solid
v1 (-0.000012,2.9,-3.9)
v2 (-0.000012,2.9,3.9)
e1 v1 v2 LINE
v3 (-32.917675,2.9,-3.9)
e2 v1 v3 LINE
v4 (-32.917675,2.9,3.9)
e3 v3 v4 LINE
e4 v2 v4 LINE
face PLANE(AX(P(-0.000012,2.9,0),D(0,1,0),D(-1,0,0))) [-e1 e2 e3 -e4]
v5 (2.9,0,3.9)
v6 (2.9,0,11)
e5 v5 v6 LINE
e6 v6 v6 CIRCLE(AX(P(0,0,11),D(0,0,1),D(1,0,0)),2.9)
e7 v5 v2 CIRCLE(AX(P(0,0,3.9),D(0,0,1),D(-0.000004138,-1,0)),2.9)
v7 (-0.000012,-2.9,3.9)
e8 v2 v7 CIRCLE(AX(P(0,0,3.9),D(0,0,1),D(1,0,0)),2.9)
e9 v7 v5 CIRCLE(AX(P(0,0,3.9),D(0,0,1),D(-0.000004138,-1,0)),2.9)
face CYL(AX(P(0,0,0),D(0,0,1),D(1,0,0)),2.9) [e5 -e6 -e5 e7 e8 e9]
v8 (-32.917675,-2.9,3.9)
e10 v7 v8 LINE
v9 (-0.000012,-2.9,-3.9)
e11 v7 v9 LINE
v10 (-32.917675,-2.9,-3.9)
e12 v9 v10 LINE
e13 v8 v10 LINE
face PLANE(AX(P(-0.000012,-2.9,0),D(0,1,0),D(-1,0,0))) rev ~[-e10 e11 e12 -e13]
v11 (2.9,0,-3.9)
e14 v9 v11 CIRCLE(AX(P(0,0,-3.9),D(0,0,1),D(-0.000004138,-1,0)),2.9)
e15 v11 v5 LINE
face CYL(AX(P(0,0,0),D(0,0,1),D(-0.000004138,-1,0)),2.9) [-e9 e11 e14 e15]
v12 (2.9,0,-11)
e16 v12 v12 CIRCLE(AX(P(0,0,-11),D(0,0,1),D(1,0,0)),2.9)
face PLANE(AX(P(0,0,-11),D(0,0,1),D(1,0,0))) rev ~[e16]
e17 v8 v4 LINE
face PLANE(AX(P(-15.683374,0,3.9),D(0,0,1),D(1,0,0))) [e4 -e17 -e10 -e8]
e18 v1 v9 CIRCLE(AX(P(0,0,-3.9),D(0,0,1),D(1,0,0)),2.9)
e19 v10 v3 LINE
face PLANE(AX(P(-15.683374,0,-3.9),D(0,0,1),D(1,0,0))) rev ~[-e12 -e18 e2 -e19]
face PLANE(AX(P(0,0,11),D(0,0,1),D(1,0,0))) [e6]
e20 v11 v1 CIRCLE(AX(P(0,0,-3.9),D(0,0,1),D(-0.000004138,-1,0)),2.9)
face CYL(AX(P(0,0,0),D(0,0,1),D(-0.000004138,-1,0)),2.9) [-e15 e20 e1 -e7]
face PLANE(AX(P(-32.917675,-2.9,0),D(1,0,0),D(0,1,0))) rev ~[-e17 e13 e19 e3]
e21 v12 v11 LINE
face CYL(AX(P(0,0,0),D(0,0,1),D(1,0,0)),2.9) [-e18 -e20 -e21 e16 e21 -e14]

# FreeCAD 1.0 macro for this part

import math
import FreeCAD as App
import Part
import Sketcher
from FreeCAD import Vector

doc = App.newDocument("Part")
body = doc.addObject("PartDesign::Body", "Body")

# Sketch on XY plane
sketch1 = body.newObject("Sketcher::SketchObject", "Sketch")
sketch1.AttachmentSupport = (doc.getObject("XY_Plane"), [""])
sketch1.MapMode = "FlatFace"
sketch1.addGeometry([
    Part.ArcOfCircle(Part.Circle(Vector(0, 0, 0), Vector(0, 0, 1), 2.9), math.radians(-90), math.radians(90)),
    Part.LineSegment(Vector(0, 2.9, 0), Vector(-32.9, 2.9, 0)),
    Part.LineSegment(Vector(-32.9, 2.9, 0), Vector(-32.9, -2.9, 0)),
    Part.LineSegment(Vector(-32.9, -2.9, 0), Vector(0, -2.9, 0)),
], False)
sketch1.addConstraint([
    Sketcher.Constraint("Coincident", 0, 2, 1, 1),
    Sketcher.Constraint("Coincident", 1, 2, 2, 1),
    Sketcher.Constraint("Coincident", 2, 2, 3, 1),
    Sketcher.Constraint("Coincident", 3, 2, 0, 1),
    Sketcher.Constraint("Horizontal", 1),
    Sketcher.Constraint("Vertical", 2),
    Sketcher.Constraint("Horizontal", 3),
    Sketcher.Constraint("Coincident", 0, 3, -1, 1),
    Sketcher.Constraint("Vertical", 0, 2, 3, 2),
    Sketcher.Constraint("Radius", 0, 2.9),
    Sketcher.Constraint("DistanceX", 1, 2, 1, 1, 32.917663),
    Sketcher.Constraint("DistanceX", 1, 2, -1, 1, 32.917675),
])
pad1 = body.newObject("PartDesign::Pad", "Pad")
pad1.Profile = sketch1
pad1.Length = 7.8
pad1.Midplane = True

# Sketch on XY plane
sketch2 = body.newObject("Sketcher::SketchObject", "Sketch001")
sketch2.AttachmentSupport = (doc.getObject("XY_Plane"), [""])
sketch2.MapMode = "FlatFace"
sketch2.addGeometry(Part.Circle(Vector(0, 0, 0), Vector(0, 0, 1), 2.9), False)
sketch2.addConstraint([
    Sketcher.Constraint("Coincident", 0, 3, -1, 1),
    Sketcher.Constraint("Diameter", 0, 5.8),
])
pad2 = body.newObject("PartDesign::Pad", "Pad001")
pad2.Profile = sketch2
pad2.Length = 22
pad2.Midplane = True

doc.recompute()
